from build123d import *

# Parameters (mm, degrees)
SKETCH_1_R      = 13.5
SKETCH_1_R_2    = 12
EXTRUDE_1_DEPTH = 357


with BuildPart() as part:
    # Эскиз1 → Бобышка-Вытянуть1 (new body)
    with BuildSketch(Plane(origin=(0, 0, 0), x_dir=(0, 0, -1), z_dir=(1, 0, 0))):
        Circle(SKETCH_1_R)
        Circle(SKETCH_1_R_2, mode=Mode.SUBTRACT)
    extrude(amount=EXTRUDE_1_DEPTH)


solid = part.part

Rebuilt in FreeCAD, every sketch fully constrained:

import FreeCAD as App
import Part
import Sketcher
from FreeCAD import Vector

doc = App.newDocument("Part")
body = doc.addObject("PartDesign::Body", "Body")

sketch1 = doc.addObject("Sketcher::SketchObject", "Sketch")
body.addObject(sketch1)
sketch1.AttachmentSupport = (doc.YZ_Plane, [""])
sketch1.MapMode = "FlatFace"
sketch1.addGeometry(Part.Circle(Vector(0, 0, 0), Vector(0, 0, 1), 13.5), False)
sketch1.addGeometry(Part.Circle(Vector(0, 0, 0), Vector(0, 0, 1), 12), False)
sketch1.addConstraint(Sketcher.Constraint("Coincident", 0, 3, -1, 1))
sketch1.addConstraint(Sketcher.Constraint("Coincident", 1, 3, -1, 1))
sketch1.addConstraint(Sketcher.Constraint("Diameter", 0, 27.0))
sketch1.addConstraint(Sketcher.Constraint("Diameter", 1, 24.0))
pad1 = doc.addObject("PartDesign::Pad", "Pad")
body.addObject(pad1)
pad1.Profile = sketch1
pad1.Length = 357

doc.recompute()
